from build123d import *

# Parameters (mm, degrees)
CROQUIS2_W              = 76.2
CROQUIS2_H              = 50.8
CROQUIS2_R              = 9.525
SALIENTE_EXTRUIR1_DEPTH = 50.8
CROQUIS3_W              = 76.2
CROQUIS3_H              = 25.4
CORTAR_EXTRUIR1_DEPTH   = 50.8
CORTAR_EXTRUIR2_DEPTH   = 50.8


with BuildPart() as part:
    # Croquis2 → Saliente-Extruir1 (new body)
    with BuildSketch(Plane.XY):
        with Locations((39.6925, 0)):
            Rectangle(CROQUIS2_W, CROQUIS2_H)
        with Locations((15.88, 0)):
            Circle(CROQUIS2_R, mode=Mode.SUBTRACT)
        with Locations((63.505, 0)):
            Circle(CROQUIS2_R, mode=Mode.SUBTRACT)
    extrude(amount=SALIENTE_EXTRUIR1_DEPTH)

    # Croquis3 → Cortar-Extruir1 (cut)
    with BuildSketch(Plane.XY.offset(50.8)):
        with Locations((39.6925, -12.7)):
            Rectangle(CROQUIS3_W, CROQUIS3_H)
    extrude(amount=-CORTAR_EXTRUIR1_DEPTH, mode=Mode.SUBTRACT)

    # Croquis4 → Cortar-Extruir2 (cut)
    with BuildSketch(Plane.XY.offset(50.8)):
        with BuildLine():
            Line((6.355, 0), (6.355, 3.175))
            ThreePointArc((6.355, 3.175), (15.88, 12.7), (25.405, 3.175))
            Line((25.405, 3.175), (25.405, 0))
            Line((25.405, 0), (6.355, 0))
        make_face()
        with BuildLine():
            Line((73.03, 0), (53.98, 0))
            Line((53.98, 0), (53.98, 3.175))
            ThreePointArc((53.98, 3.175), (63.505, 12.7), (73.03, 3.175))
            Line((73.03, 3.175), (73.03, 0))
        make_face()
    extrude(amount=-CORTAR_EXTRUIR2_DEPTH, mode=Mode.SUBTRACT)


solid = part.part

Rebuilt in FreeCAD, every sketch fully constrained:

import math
import FreeCAD as App
import Part
import Sketcher
Q = App.Units.Quantity

doc = App.newDocument("Part")
body = doc.addObject("PartDesign::Body", "Body")

# Sketch on XY plane
sketch1 = doc.addObject("Sketcher::SketchObject", "Sketch")
body.addObject(sketch1)
sketch1.AttachmentSupport = (doc.XY_Plane, [""])
sketch1.MapMode = "FlatFace"
sketch1.addGeometry([
    Part.LineSegment(App.Vector(2, 25, 0), App.Vector(2, -25, 0)),  # 0
    Part.LineSegment(App.Vector(2, -25, 0), App.Vector(78, -25, 0)),  # 1
    Part.LineSegment(App.Vector(78, -25, 0), App.Vector(78, 25, 0)),  # 2
    Part.LineSegment(App.Vector(78, 25, 0), App.Vector(2, 25, 0)),  # 3
    Part.Circle(App.Vector(16, 0, 0), App.Vector(0, 0, 1), 10),  # 4
    Part.Circle(App.Vector(64, 0, 0), App.Vector(0, 0, 1), 10),  # 5
], False)
sketch1.addConstraint([
    Sketcher.Constraint("Coincident", 0, 2, 1, 1),
    Sketcher.Constraint("Coincident", 1, 2, 2, 1),
    Sketcher.Constraint("Coincident", 2, 2, 3, 1),
    Sketcher.Constraint("Coincident", 3, 2, 0, 1),
    Sketcher.Constraint("Vertical", 0),
    Sketcher.Constraint("Horizontal", 1),
    Sketcher.Constraint("Vertical", 2),
    Sketcher.Constraint("Horizontal", 3),
    Sketcher.Constraint("Equal", 4, 5),
    Sketcher.Constraint("PointOnObject", 4, 3, -1),
    Sketcher.Constraint("PointOnObject", 5, 3, -1),
    Sketcher.Constraint("Diameter", 4, Q("0.75 in")),
    Sketcher.Constraint("DistanceX", 1, 1, 1, 2, Q("3 in")),
    Sketcher.Constraint("DistanceY", 0, 2, 0, 1, Q("2 in")),
    Sketcher.Constraint("DistanceY", 0, 2, -1, 1, Q("1 in")),
    Sketcher.Constraint("DistanceX", 4, 3, 5, 3, Q("1.875 in")),
    Sketcher.Constraint("DistanceX", 0, 2, 4, 3, Q("0.5625 in")),
    Sketcher.Constraint("DistanceX", -1, 1, 4, 3, Q("15.88 mm")),
])
pad1 = doc.addObject("PartDesign::Pad", "Pad")
body.addObject(pad1)
pad1.Profile = sketch1
pad1.Length = Q("2 in")

# Sketch on XY plane
sketch2 = doc.addObject("Sketcher::SketchObject", "Sketch001")
body.addObject(sketch2)
sketch2.AttachmentSupport = (doc.XY_Plane, [""])
sketch2.MapMode = "FlatFace"
sketch2.AttachmentOffset = App.Placement(App.Vector(0, 0, 2 * 25.4), App.Rotation())
sketch2.addGeometry([
    Part.LineSegment(App.Vector(2, 0, 0), App.Vector(2, -25, 0)),
    Part.LineSegment(App.Vector(2, -25, 0), App.Vector(78, -25, 0)),
    Part.LineSegment(App.Vector(78, -25, 0), App.Vector(78, 0, 0)),
    Part.LineSegment(App.Vector(78, 0, 0), App.Vector(2, 0, 0)),
], False)
sketch2.addConstraint([
    Sketcher.Constraint("Coincident", 0, 2, 1, 1),
    Sketcher.Constraint("Coincident", 1, 2, 2, 1),
    Sketcher.Constraint("Coincident", 2, 2, 3, 1),
    Sketcher.Constraint("Coincident", 3, 2, 0, 1),
    Sketcher.Constraint("Vertical", 0),
    Sketcher.Constraint("Horizontal", 1),
    Sketcher.Constraint("Vertical", 2),
    Sketcher.Constraint("Horizontal", 3),
    Sketcher.Constraint("PointOnObject", 2, 2, -1),
    Sketcher.Constraint("DistanceX", 1, 1, 1, 2, Q("3 in")),
    Sketcher.Constraint("DistanceY", 0, 2, 0, 1, Q("1 in")),
    Sketcher.Constraint("DistanceX", -1, 1, 0, 2, Q("1.5925 mm")),
])
pocket1 = doc.addObject("PartDesign::Pocket", "Pocket")
body.addObject(pocket1)
pocket1.Profile = sketch2
pocket1.Length = Q("2 in")

# Sketch on XY plane
sketch3 = doc.addObject("Sketcher::SketchObject", "Sketch002")
body.addObject(sketch3)
sketch3.AttachmentSupport = (doc.XY_Plane, [""])
sketch3.MapMode = "FlatFace"
sketch3.AttachmentOffset = App.Placement(App.Vector(0, 0, 2 * 25.4), App.Rotation())
sketch3.addGeometry([
    Part.LineSegment(App.Vector(6.4, 3.2, 0), App.Vector(6.4, 0, 0)),  # 0
    Part.LineSegment(App.Vector(6.4, 0, 0), App.Vector(25.4, 0, 0)),  # 1
    Part.LineSegment(App.Vector(25.4, 0, 0), App.Vector(25.4, 3.2, 0)),  # 2
    Part.ArcOfCircle(Part.Circle(App.Vector(15.9, 3.2, 0), App.Vector(0, 0, 1), 9.5), math.radians(0), math.radians(180)),  # 3
    Part.LineSegment(App.Vector(54, 0, 0), App.Vector(73, 0, 0)),  # 4
    Part.LineSegment(App.Vector(73, 0, 0), App.Vector(73, 3.2, 0)),  # 5
    Part.ArcOfCircle(Part.Circle(App.Vector(63.5, 3.2, 0), App.Vector(0, 0, 1), 9.5), math.radians(0), math.radians(180)),  # 6
    Part.LineSegment(App.Vector(54, 3.2, 0), App.Vector(54, 0, 0)),  # 7
], False)
sketch3.addConstraint([
    Sketcher.Constraint("Coincident", 0, 2, 1, 1),
    Sketcher.Constraint("Coincident", 1, 2, 2, 1),
    Sketcher.Constraint("Tangent", 2, 2, 3, 1),
    Sketcher.Constraint("Tangent", 3, 2, 0, 1),
    Sketcher.Constraint("Coincident", 4, 2, 5, 1),
    Sketcher.Constraint("Tangent", 5, 2, 6, 1),
    Sketcher.Constraint("Tangent", 6, 2, 7, 1),
    Sketcher.Constraint("Coincident", 7, 2, 4, 1),
    Sketcher.Constraint("Vertical", 0),
    Sketcher.Constraint("Horizontal", 1),
    Sketcher.Constraint("Vertical", 2),
    Sketcher.Constraint("Horizontal", 4),
    Sketcher.Constraint("Vertical", 5),
    Sketcher.Constraint("Vertical", 7),
    Sketcher.Constraint("Equal", 3, 6),
    Sketcher.Constraint("PointOnObject", 0, 2, -1),
    Sketcher.Constraint("PointOnObject", 4, 2, -1),
    Sketcher.Constraint("Horizontal", 3, 3, 6, 3),
    Sketcher.Constraint("Radius", 3, Q("0.375 in")),
    Sketcher.Constraint("DistanceX", 1, 2, 6, 3, Q("1.5 in")),
    Sketcher.Constraint("DistanceY", 0, 2, 0, 1, Q("0.125 in")),
    Sketcher.Constraint("DistanceX", -1, 1, 3, 3, Q("15.88 mm")),
])
pocket2 = doc.addObject("PartDesign::Pocket", "Pocket001")
body.addObject(pocket2)
pocket2.Profile = sketch3
pocket2.Length = Q("2 in")

doc.recompute()
